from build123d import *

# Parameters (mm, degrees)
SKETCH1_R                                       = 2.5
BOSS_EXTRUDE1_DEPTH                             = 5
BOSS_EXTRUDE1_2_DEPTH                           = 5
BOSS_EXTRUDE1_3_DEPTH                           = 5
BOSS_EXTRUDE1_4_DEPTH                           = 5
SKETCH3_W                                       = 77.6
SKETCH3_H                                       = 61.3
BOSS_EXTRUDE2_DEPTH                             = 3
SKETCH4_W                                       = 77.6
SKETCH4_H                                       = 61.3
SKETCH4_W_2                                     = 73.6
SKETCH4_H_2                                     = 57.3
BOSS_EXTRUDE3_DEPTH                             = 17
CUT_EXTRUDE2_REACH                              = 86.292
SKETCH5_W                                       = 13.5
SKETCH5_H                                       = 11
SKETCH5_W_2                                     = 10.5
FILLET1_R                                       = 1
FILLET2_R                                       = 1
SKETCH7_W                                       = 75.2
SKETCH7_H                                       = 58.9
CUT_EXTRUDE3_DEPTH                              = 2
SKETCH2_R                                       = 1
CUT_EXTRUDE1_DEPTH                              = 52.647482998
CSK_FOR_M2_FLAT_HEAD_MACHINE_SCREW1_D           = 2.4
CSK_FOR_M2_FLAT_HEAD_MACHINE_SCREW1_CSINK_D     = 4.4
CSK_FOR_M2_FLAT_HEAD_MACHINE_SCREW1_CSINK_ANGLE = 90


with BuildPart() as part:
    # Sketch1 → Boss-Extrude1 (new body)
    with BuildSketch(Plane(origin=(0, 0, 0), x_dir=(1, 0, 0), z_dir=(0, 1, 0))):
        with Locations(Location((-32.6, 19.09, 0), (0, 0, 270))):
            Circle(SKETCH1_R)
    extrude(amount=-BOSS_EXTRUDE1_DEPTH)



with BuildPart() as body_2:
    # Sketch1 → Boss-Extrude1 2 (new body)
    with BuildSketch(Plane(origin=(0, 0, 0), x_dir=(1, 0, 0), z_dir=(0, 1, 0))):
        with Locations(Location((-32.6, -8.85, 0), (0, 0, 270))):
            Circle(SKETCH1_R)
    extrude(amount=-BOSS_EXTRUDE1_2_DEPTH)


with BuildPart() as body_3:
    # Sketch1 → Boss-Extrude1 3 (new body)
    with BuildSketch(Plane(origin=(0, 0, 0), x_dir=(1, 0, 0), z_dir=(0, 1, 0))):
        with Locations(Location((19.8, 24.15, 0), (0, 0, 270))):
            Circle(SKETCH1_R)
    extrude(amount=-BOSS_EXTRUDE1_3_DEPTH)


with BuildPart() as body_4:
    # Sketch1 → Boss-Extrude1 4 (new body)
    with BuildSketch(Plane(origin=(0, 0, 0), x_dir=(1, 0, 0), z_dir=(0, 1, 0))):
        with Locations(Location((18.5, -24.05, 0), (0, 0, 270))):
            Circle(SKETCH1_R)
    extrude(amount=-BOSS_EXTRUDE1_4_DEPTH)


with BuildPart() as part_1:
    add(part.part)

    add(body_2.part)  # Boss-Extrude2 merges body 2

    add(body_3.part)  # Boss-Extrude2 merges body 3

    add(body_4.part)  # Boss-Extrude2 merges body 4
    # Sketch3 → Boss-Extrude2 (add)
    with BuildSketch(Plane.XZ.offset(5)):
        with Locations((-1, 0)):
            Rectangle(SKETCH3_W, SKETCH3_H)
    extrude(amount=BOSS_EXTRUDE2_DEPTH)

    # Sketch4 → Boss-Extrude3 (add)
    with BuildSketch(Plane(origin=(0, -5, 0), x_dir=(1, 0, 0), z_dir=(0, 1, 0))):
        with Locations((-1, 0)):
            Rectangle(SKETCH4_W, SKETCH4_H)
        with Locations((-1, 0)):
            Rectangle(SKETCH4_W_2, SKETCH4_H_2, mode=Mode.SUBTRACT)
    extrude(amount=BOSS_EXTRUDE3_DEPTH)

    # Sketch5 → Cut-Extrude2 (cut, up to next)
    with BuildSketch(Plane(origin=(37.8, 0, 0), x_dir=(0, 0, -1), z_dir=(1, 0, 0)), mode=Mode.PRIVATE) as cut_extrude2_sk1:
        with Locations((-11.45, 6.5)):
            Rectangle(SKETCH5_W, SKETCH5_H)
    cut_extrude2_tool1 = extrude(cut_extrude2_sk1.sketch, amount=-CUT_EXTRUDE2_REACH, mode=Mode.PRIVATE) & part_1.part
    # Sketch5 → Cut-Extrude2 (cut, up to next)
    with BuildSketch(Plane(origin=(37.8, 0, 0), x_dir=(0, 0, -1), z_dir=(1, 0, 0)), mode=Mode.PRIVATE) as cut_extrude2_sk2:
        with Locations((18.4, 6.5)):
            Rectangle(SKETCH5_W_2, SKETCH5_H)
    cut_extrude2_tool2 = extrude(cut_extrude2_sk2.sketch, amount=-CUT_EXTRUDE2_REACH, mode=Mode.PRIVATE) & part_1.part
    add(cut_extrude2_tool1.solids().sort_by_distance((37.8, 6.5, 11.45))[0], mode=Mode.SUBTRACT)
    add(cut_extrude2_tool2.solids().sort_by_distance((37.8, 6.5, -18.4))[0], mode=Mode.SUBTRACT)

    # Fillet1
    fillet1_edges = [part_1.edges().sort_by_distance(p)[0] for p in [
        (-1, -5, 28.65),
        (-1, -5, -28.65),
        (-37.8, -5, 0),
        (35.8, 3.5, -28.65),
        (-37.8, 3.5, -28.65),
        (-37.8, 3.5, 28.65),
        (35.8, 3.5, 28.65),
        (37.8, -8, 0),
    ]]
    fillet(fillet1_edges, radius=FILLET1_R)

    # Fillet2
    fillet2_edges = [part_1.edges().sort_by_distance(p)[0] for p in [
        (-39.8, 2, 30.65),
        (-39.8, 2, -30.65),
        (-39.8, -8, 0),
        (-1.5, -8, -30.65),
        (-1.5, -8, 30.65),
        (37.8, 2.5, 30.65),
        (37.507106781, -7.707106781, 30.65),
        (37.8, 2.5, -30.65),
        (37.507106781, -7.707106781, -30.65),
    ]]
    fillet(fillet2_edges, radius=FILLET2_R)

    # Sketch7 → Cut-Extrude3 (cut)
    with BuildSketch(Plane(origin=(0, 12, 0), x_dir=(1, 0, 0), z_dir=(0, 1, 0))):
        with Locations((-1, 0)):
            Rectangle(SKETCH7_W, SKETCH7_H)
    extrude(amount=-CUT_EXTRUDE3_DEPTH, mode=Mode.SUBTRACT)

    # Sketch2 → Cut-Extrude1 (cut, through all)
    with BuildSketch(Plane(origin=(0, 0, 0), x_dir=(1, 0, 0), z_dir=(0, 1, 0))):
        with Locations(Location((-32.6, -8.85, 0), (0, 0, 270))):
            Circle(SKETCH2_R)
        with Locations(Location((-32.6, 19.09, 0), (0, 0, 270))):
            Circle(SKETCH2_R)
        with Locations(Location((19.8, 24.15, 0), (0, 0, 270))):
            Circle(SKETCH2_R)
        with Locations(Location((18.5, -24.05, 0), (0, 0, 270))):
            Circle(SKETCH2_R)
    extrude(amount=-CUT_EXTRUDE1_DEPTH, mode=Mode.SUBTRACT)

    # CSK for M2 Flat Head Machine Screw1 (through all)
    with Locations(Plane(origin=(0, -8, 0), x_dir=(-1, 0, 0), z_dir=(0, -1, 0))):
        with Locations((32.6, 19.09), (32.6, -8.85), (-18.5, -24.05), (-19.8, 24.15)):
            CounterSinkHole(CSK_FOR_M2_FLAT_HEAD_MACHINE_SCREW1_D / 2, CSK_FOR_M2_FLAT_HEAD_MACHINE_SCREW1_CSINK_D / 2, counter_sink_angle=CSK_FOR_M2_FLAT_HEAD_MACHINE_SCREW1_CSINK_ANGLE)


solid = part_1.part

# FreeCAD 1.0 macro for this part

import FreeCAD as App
import Part
import Sketcher
Q = App.Units.Quantity


def edges_at(feature, points):
    """Names of the edges that pass closest to the given points."""
    edges = feature.Shape.Edges
    near = lambda p: min(range(len(edges)), key=lambda i: edges[i].distToShape(Part.Vertex(*p))[0])
    return sorted({f"Edge{near(p) + 1}" for p in points})

doc = App.newDocument("Part")
body = doc.addObject("PartDesign::Body", "Body")

sketch1 = body.newObject("Sketcher::SketchObject", "Sketch")
sketch1.AttachmentSupport = (doc.getObject("XZ_Plane"), [""])
sketch1.MapMode = "FlatFace"
sketch1.addGeometry(Part.Circle(App.Vector(-32.6, -19.1, 0), App.Vector(0, 0, 1), 2.5), False)
sketch1.addConstraint(Sketcher.Constraint("Diameter", 0, Q("5 mm")))
sketch1.addConstraint(Sketcher.Constraint("DistanceX", 0, 3, -1, 1, Q("32.6 mm")))
sketch1.addConstraint(Sketcher.Constraint("DistanceY", 0, 3, -1, 1, Q("19.09 mm")))
pad1 = body.newObject("PartDesign::Pad", "Pad")
pad1.Profile = sketch1
pad1.Length = 5
body2 = doc.addObject("PartDesign::Body", "Body001")

sketch2 = body2.newObject("Sketcher::SketchObject", "Sketch001")
sketch2.AttachmentSupport = (doc.getObject("XZ_Plane001"), [""])
sketch2.MapMode = "FlatFace"
sketch2.addGeometry(Part.Circle(App.Vector(-32.6, 8.8, 0), App.Vector(0, 0, 1), 2.5), False)
sketch2.addConstraint(Sketcher.Constraint("Diameter", 0, Q("5 mm")))
sketch2.addConstraint(Sketcher.Constraint("DistanceX", 0, 3, -1, 1, Q("32.6 mm")))
sketch2.addConstraint(Sketcher.Constraint("DistanceY", -1, 1, 0, 3, Q("8.85 mm")))
pad2 = body2.newObject("PartDesign::Pad", "Pad001")
pad2.Profile = sketch2
pad2.Length = 5
body3 = doc.addObject("PartDesign::Body", "Body002")

sketch3 = body3.newObject("Sketcher::SketchObject", "Sketch002")
sketch3.AttachmentSupport = (doc.getObject("XZ_Plane002"), [""])
sketch3.MapMode = "FlatFace"
sketch3.addGeometry(Part.Circle(App.Vector(19.8, -24.1, 0), App.Vector(0, 0, 1), 2.5), False)
sketch3.addConstraint(Sketcher.Constraint("Diameter", 0, Q("5 mm")))
sketch3.addConstraint(Sketcher.Constraint("DistanceX", -1, 1, 0, 3, Q("19.8 mm")))
sketch3.addConstraint(Sketcher.Constraint("DistanceY", 0, 3, -1, 1, Q("24.15 mm")))
pad3 = body3.newObject("PartDesign::Pad", "Pad002")
pad3.Profile = sketch3
pad3.Length = 5
body4 = doc.addObject("PartDesign::Body", "Body003")

sketch4 = body4.newObject("Sketcher::SketchObject", "Sketch003")
sketch4.AttachmentSupport = (doc.getObject("XZ_Plane003"), [""])
sketch4.MapMode = "FlatFace"
sketch4.addGeometry(Part.Circle(App.Vector(18.5, 24.1, 0), App.Vector(0, 0, 1), 2.5), False)
sketch4.addConstraint(Sketcher.Constraint("Diameter", 0, Q("5 mm")))
sketch4.addConstraint(Sketcher.Constraint("DistanceX", -1, 1, 0, 3, Q("18.5 mm")))
sketch4.addConstraint(Sketcher.Constraint("DistanceY", -1, 1, 0, 3, Q("24.05 mm")))
pad4 = body4.newObject("PartDesign::Pad", "Pad003")
pad4.Profile = sketch4
pad4.Length = 5
body.AllowCompound = True
doc.recompute()

boolean = body.newObject("PartDesign::Boolean", "Boolean")
boolean.Type = "Fuse"
boolean.addObjects([body2])
doc.recompute()

boolean2 = body.newObject("PartDesign::Boolean", "Boolean001")
boolean2.Type = "Fuse"
boolean2.addObjects([body3])
doc.recompute()

boolean3 = body.newObject("PartDesign::Boolean", "Boolean002")
boolean3.Type = "Fuse"
boolean3.addObjects([body4])

sketch5 = body.newObject("Sketcher::SketchObject", "Sketch004")
sketch5.AttachmentSupport = (doc.getObject("XZ_Plane"), [""])
sketch5.MapMode = "FlatFace"
sketch5.AttachmentOffset = App.Placement(App.Vector(0, 0, 5), App.Rotation())
sketch5.addGeometry(Part.LineSegment(App.Vector(-40, 31, 0), App.Vector(-40, -31, 0)), False)
sketch5.addGeometry(Part.LineSegment(App.Vector(-40, -31, 0), App.Vector(38, -31, 0)), False)
sketch5.addGeometry(Part.LineSegment(App.Vector(38, -31, 0), App.Vector(38, 31, 0)), False)
sketch5.addGeometry(Part.LineSegment(App.Vector(38, 31, 0), App.Vector(-40, 31, 0)), False)
sketch5.addConstraint(Sketcher.Constraint("Coincident", 0, 2, 1, 1))
sketch5.addConstraint(Sketcher.Constraint("Coincident", 1, 2, 2, 1))
sketch5.addConstraint(Sketcher.Constraint("Coincident", 2, 2, 3, 1))
sketch5.addConstraint(Sketcher.Constraint("Coincident", 3, 2, 0, 1))
sketch5.addConstraint(Sketcher.Constraint("Vertical", 0))
sketch5.addConstraint(Sketcher.Constraint("Horizontal", 1))
sketch5.addConstraint(Sketcher.Constraint("Vertical", 2))
sketch5.addConstraint(Sketcher.Constraint("Horizontal", 3))
sketch5.addConstraint(Sketcher.Constraint("DistanceX", 1, 1, 1, 2, Q("77.6 mm")))
sketch5.addConstraint(Sketcher.Constraint("DistanceY", 0, 2, 0, 1, Q("61.3 mm")))
sketch5.addConstraint(Sketcher.Constraint("DistanceX", 0, 2, -1, 1, Q("39.8 mm")))
sketch5.addConstraint(Sketcher.Constraint("DistanceY", 0, 2, -1, 1, Q("30.65 mm")))
pad5 = body.newObject("PartDesign::Pad", "Pad004")
pad5.Profile = sketch5
pad5.Length = 3

sketch6 = body.newObject("Sketcher::SketchObject", "Sketch005")
sketch6.AttachmentSupport = (doc.getObject("XZ_Plane"), [""])
sketch6.MapMode = "FlatFace"
sketch6.AttachmentOffset = App.Placement(App.Vector(0, 0, 5), App.Rotation())
sketch6.addGeometry(Part.LineSegment(App.Vector(-40, -31, 0), App.Vector(-40, 31, 0)), False)
sketch6.addGeometry(Part.LineSegment(App.Vector(-40, 31, 0), App.Vector(38, 31, 0)), False)
sketch6.addGeometry(Part.LineSegment(App.Vector(38, 31, 0), App.Vector(38, -31, 0)), False)
sketch6.addGeometry(Part.LineSegment(App.Vector(38, -31, 0), App.Vector(-40, -31, 0)), False)
sketch6.addGeometry(Part.LineSegment(App.Vector(36, 29, 0), App.Vector(-38, 29, 0)), False)
sketch6.addGeometry(Part.LineSegment(App.Vector(-38, 29, 0), App.Vector(-38, -29, 0)), False)
sketch6.addGeometry(Part.LineSegment(App.Vector(-38, -29, 0), App.Vector(36, -29, 0)), False)
sketch6.addGeometry(Part.LineSegment(App.Vector(36, -29, 0), App.Vector(36, 29, 0)), False)
sketch6.addConstraint(Sketcher.Constraint("Coincident", 0, 2, 1, 1))
sketch6.addConstraint(Sketcher.Constraint("Coincident", 1, 2, 2, 1))
sketch6.addConstraint(Sketcher.Constraint("Coincident", 2, 2, 3, 1))
sketch6.addConstraint(Sketcher.Constraint("Coincident", 3, 2, 0, 1))
sketch6.addConstraint(Sketcher.Constraint("Coincident", 4, 2, 5, 1))
sketch6.addConstraint(Sketcher.Constraint("Coincident", 5, 2, 6, 1))
sketch6.addConstraint(Sketcher.Constraint("Coincident", 6, 2, 7, 1))
sketch6.addConstraint(Sketcher.Constraint("Coincident", 7, 2, 4, 1))
sketch6.addConstraint(Sketcher.Constraint("Vertical", 0))
sketch6.addConstraint(Sketcher.Constraint("Horizontal", 1))
sketch6.addConstraint(Sketcher.Constraint("Vertical", 2))
sketch6.addConstraint(Sketcher.Constraint("Horizontal", 3))
sketch6.addConstraint(Sketcher.Constraint("Horizontal", 4))
sketch6.addConstraint(Sketcher.Constraint("Vertical", 5))
sketch6.addConstraint(Sketcher.Constraint("Horizontal", 6))
sketch6.addConstraint(Sketcher.Constraint("Vertical", 7))
sketch6.addConstraint(Sketcher.Constraint("DistanceX", 1, 1, 1, 2, Q("77.6 mm")))
sketch6.addConstraint(Sketcher.Constraint("DistanceX", 4, 2, 4, 1, Q("73.6 mm")))
sketch6.addConstraint(Sketcher.Constraint("DistanceY", 0, 1, 0, 2, Q("61.3 mm")))
sketch6.addConstraint(Sketcher.Constraint("DistanceY", 5, 2, 5, 1, Q("57.3 mm")))
sketch6.addConstraint(Sketcher.Constraint("DistanceX", 0, 2, 4, 2, Q("2 mm")))
sketch6.addConstraint(Sketcher.Constraint("DistanceY", 4, 2, 0, 2, Q("2 mm")))
sketch6.addConstraint(Sketcher.Constraint("DistanceX", 0, 2, -1, 1, Q("39.8 mm")))
sketch6.addConstraint(Sketcher.Constraint("DistanceY", -1, 1, 0, 2, Q("30.65 mm")))
pad6 = body.newObject("PartDesign::Pad", "Pad005")
pad6.Profile = sketch6
pad6.Length = 17
pad6.Reversed = True

sketch7 = body.newObject("Sketcher::SketchObject", "Sketch006")
sketch7.AttachmentSupport = (doc.getObject("YZ_Plane"), [""])
sketch7.MapMode = "FlatFace"
sketch7.AttachmentOffset = App.Placement(App.Vector(0, 0, 37.8), App.Rotation())
sketch7.addGeometry(Part.LineSegment(App.Vector(12, 18, 0), App.Vector(1, 18, 0)), False)
sketch7.addGeometry(Part.LineSegment(App.Vector(1, 18, 0), App.Vector(1, 5, 0)), False)
sketch7.addGeometry(Part.LineSegment(App.Vector(1, 5, 0), App.Vector(12, 5, 0)), False)
sketch7.addGeometry(Part.LineSegment(App.Vector(12, 5, 0), App.Vector(12, 18, 0)), False)
sketch7.addConstraint(Sketcher.Constraint("Coincident", 0, 2, 1, 1))
sketch7.addConstraint(Sketcher.Constraint("Coincident", 1, 2, 2, 1))
sketch7.addConstraint(Sketcher.Constraint("Coincident", 2, 2, 3, 1))
sketch7.addConstraint(Sketcher.Constraint("Coincident", 3, 2, 0, 1))
sketch7.addConstraint(Sketcher.Constraint("Horizontal", 0))
sketch7.addConstraint(Sketcher.Constraint("Vertical", 1))
sketch7.addConstraint(Sketcher.Constraint("Horizontal", 2))
sketch7.addConstraint(Sketcher.Constraint("Vertical", 3))
sketch7.addConstraint(Sketcher.Constraint("DistanceX", 0, 2, 0, 1, Q("11 mm")))
sketch7.addConstraint(Sketcher.Constraint("DistanceY", 1, 2, 1, 1, Q("13.5 mm")))
sketch7.addConstraint(Sketcher.Constraint("DistanceX", -1, 1, 0, 2, Q("1 mm")))
sketch7.addConstraint(Sketcher.Constraint("DistanceY", -1, 1, 0, 2, Q("18.2 mm")))
pocket1 = body.newObject("PartDesign::Pocket", "Pocket")
pocket1.Profile = sketch7
pocket1.Type = "UpToFirst"

sketch8 = body.newObject("Sketcher::SketchObject", "Sketch007")
sketch8.AttachmentSupport = (doc.getObject("YZ_Plane"), [""])
sketch8.MapMode = "FlatFace"
sketch8.AttachmentOffset = App.Placement(App.Vector(0, 0, 37.8), App.Rotation())
sketch8.addGeometry(Part.LineSegment(App.Vector(12, -13, 0), App.Vector(1, -13, 0)), False)
sketch8.addGeometry(Part.LineSegment(App.Vector(1, -13, 0), App.Vector(1, -24, 0)), False)
sketch8.addGeometry(Part.LineSegment(App.Vector(1, -24, 0), App.Vector(12, -24, 0)), False)
sketch8.addGeometry(Part.LineSegment(App.Vector(12, -24, 0), App.Vector(12, -13, 0)), False)
sketch8.addConstraint(Sketcher.Constraint("Coincident", 0, 2, 1, 1))
sketch8.addConstraint(Sketcher.Constraint("Coincident", 1, 2, 2, 1))
sketch8.addConstraint(Sketcher.Constraint("Coincident", 2, 2, 3, 1))
sketch8.addConstraint(Sketcher.Constraint("Coincident", 3, 2, 0, 1))
sketch8.addConstraint(Sketcher.Constraint("Horizontal", 0))
sketch8.addConstraint(Sketcher.Constraint("Vertical", 1))
sketch8.addConstraint(Sketcher.Constraint("Horizontal", 2))
sketch8.addConstraint(Sketcher.Constraint("Vertical", 3))
sketch8.addConstraint(Sketcher.Constraint("DistanceX", 0, 2, 0, 1, Q("11 mm")))
sketch8.addConstraint(Sketcher.Constraint("DistanceY", 1, 2, 1, 1, Q("10.5 mm")))
sketch8.addConstraint(Sketcher.Constraint("DistanceX", -1, 1, 0, 2, Q("1 mm")))
sketch8.addConstraint(Sketcher.Constraint("DistanceY", 0, 2, -1, 1, Q("13.15 mm")))
pocket2 = body.newObject("PartDesign::Pocket", "Pocket001")
pocket2.Profile = sketch8
pocket2.Type = "UpToFirst"
doc.recompute()

fillet = body.newObject("PartDesign::Fillet", "Fillet")
fillet.Base = (pocket2, edges_at(pocket2, [
    (-1, -5, 28.65),
    (-1, -5, -28.65),
    (-37.8, -5, 0),
    (35.8, 3.5, -28.65),
    (-37.8, 3.5, -28.65),
    (-37.8, 3.5, 28.65),
    (35.8, 3.5, 28.65),
    (37.8, -8, 0),
]))
fillet.Radius = 1
doc.recompute()

fillet2 = body.newObject("PartDesign::Fillet", "Fillet001")
fillet2.Base = (fillet, edges_at(fillet, [
    (-39.8, 2, 30.65),
    (-39.8, 2, -30.65),
    (-39.8, -8, 0),
    (-1.5, -8, -30.65),
    (-1.5, -8, 30.65),
    (37.8, 2.5, 30.65),
    (37.507, -7.707, 30.65),
    (37.8, 2.5, -30.65),
    (37.507, -7.707, -30.65),
]))
fillet2.Radius = 1

sketch9 = body.newObject("Sketcher::SketchObject", "Sketch008")
sketch9.AttachmentSupport = (doc.getObject("XZ_Plane"), [""])
sketch9.MapMode = "FlatFace"
sketch9.AttachmentOffset = App.Placement(App.Vector(0, 0, -12), App.Rotation())
sketch9.addGeometry(Part.LineSegment(App.Vector(-39, -29, 0), App.Vector(-39, 29, 0)), False)
sketch9.addGeometry(Part.LineSegment(App.Vector(-39, 29, 0), App.Vector(37, 29, 0)), False)
sketch9.addGeometry(Part.LineSegment(App.Vector(37, 29, 0), App.Vector(37, -29, 0)), False)
sketch9.addGeometry(Part.LineSegment(App.Vector(37, -29, 0), App.Vector(-39, -29, 0)), False)
sketch9.addConstraint(Sketcher.Constraint("Coincident", 0, 2, 1, 1))
sketch9.addConstraint(Sketcher.Constraint("Coincident", 1, 2, 2, 1))
sketch9.addConstraint(Sketcher.Constraint("Coincident", 2, 2, 3, 1))
sketch9.addConstraint(Sketcher.Constraint("Coincident", 3, 2, 0, 1))
sketch9.addConstraint(Sketcher.Constraint("Vertical", 0))
sketch9.addConstraint(Sketcher.Constraint("Horizontal", 1))
sketch9.addConstraint(Sketcher.Constraint("Vertical", 2))
sketch9.addConstraint(Sketcher.Constraint("Horizontal", 3))
sketch9.addConstraint(Sketcher.Constraint("DistanceX", 1, 1, 1, 2, Q("75.2 mm")))
sketch9.addConstraint(Sketcher.Constraint("DistanceY", 0, 1, 0, 2, Q("58.9 mm")))
sketch9.addConstraint(Sketcher.Constraint("DistanceX", 0, 2, -1, 1, Q("38.6 mm")))
sketch9.addConstraint(Sketcher.Constraint("DistanceY", -1, 1, 0, 2, Q("29.45 mm")))
pocket3 = body.newObject("PartDesign::Pocket", "Pocket002")
pocket3.Profile = sketch9
pocket3.Length = 2
pocket3.Reversed = True

sketch10 = body.newObject("Sketcher::SketchObject", "Sketch009")
sketch10.AttachmentSupport = (doc.getObject("XZ_Plane"), [""])
sketch10.MapMode = "FlatFace"
sketch10.addGeometry(Part.Circle(App.Vector(-32.6, 8.8, 0), App.Vector(0, 0, 1), 1), False)
sketch10.addGeometry(Part.Circle(App.Vector(-32.6, -19.1, 0), App.Vector(0, 0, 1), 1), False)
sketch10.addGeometry(Part.Circle(App.Vector(19.8, -24.1, 0), App.Vector(0, 0, 1), 1), False)
sketch10.addGeometry(Part.Circle(App.Vector(18.5, 24.1, 0), App.Vector(0, 0, 1), 1), False)
sketch10.addConstraint(Sketcher.Constraint("Equal", 0, 1))
sketch10.addConstraint(Sketcher.Constraint("Equal", 1, 2))
sketch10.addConstraint(Sketcher.Constraint("Equal", 2, 3))
sketch10.addConstraint(Sketcher.Constraint("Vertical", 0, 3, 1, 3))
sketch10.addConstraint(Sketcher.Constraint("Diameter", 0, Q("2 mm")))
sketch10.addConstraint(Sketcher.Constraint("DistanceY", 2, 3, 0, 3, Q("33 mm")))
sketch10.addConstraint(Sketcher.Constraint("DistanceX", 0, 3, -1, 1, Q("32.6 mm")))
sketch10.addConstraint(Sketcher.Constraint("DistanceX", -1, 1, 2, 3, Q("19.8 mm")))
sketch10.addConstraint(Sketcher.Constraint("DistanceX", -1, 1, 3, 3, Q("18.5 mm")))
sketch10.addConstraint(Sketcher.Constraint("DistanceY", 2, 3, 3, 3, Q("48.2 mm")))
sketch10.addConstraint(Sketcher.Constraint("DistanceY", -1, 1, 0, 3, Q("8.85 mm")))
sketch10.addConstraint(Sketcher.Constraint("DistanceY", 1, 3, -1, 1, Q("19.09 mm")))
pocket4 = body.newObject("PartDesign::Pocket", "Pocket003")
pocket4.Profile = sketch10
pocket4.Type = "ThroughAll"
pocket4.Reversed = True

sketch11 = body.newObject("Sketcher::SketchObject", "Sketch010")
sketch11.AttachmentSupport = (doc.getObject("XZ_Plane"), [""])
sketch11.MapMode = "FlatFace"
sketch11.AttachmentOffset = App.Placement(App.Vector(0, 0, 8), App.Rotation())
sketch11.addGeometry(Part.Circle(App.Vector(-32.6, -19.1, 0), App.Vector(0, 0, 1), 1.2), False)
sketch11.addGeometry(Part.Circle(App.Vector(-32.6, 8.8, 0), App.Vector(0, 0, 1), 1.2), False)
sketch11.addGeometry(Part.Circle(App.Vector(18.5, 24.1, 0), App.Vector(0, 0, 1), 1.2), False)
sketch11.addGeometry(Part.Circle(App.Vector(19.8, -24.1, 0), App.Vector(0, 0, 1), 1.2), False)
sketch11.addConstraint(Sketcher.Constraint("Equal", 0, 1))
sketch11.addConstraint(Sketcher.Constraint("Equal", 1, 2))
sketch11.addConstraint(Sketcher.Constraint("Equal", 2, 3))
sketch11.addConstraint(Sketcher.Constraint("Vertical", 0, 3, 1, 3))
sketch11.addConstraint(Sketcher.Constraint("Diameter", 0, Q("2.4 mm")))
sketch11.addConstraint(Sketcher.Constraint("DistanceY", 3, 3, 1, 3, Q("33 mm")))
sketch11.addConstraint(Sketcher.Constraint("DistanceX", 0, 3, -1, 1, Q("32.6 mm")))
sketch11.addConstraint(Sketcher.Constraint("DistanceX", -1, 1, 2, 3, Q("18.5 mm")))
sketch11.addConstraint(Sketcher.Constraint("DistanceX", -1, 1, 3, 3, Q("19.8 mm")))
sketch11.addConstraint(Sketcher.Constraint("DistanceY", 1, 3, 2, 3, Q("15.2 mm")))
sketch11.addConstraint(Sketcher.Constraint("DistanceY", 0, 3, -1, 1, Q("19.09 mm")))
sketch11.addConstraint(Sketcher.Constraint("DistanceY", -1, 1, 1, 3, Q("8.85 mm")))
doc.recompute()
hole = body.newObject("PartDesign::Hole", "Hole")
hole.Profile = sketch11
hole.ThreadType = "None"
hole.Diameter = 2.4
hole.DepthType = "ThroughAll"
hole.HoleCutType = "Countersink"
hole.HoleCutDiameter = 4.4
hole.HoleCutCountersinkAngle = 90

doc.recompute()
